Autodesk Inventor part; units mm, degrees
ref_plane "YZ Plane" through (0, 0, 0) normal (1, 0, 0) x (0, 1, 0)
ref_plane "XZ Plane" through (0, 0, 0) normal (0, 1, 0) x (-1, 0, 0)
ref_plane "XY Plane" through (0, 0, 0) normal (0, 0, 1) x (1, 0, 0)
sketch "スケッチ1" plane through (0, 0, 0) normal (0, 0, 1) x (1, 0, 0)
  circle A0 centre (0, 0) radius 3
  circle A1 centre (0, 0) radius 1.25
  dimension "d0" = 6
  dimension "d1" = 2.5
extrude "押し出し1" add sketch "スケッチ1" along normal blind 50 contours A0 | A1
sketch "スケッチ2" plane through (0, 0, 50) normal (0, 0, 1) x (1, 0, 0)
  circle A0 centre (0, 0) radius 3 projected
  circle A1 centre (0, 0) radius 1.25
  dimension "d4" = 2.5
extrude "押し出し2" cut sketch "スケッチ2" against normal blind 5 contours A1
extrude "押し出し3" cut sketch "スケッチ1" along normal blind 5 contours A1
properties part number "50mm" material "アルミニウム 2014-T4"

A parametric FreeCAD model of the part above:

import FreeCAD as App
import Part
import Sketcher

V = App.Vector

doc = App.newDocument("Part")
body = doc.addObject("PartDesign::Body", "Body")

# Sketch on XY plane
sketch1 = body.newObject("Sketcher::SketchObject", "Sketch")
sketch1.AttachmentSupport = (doc.getObject("XY_Plane"), [""])
sketch1.MapMode = "FlatFace"
sketch1.addGeometry(Part.Circle(V(0, 0, 0), V(0, 0, 1), 3), False)
sketch1.addConstraint([
    Sketcher.Constraint("Coincident", 0, 3, -1, 1),
    Sketcher.Constraint("Diameter", 0, 6.0),
])
pad1 = body.newObject("PartDesign::Pad", "Pad")
pad1.Profile = sketch1
pad1.Length = 50

# Sketch on XY plane
sketch2 = body.newObject("Sketcher::SketchObject", "Sketch001")
sketch2.AttachmentSupport = (doc.getObject("XY_Plane"), [""])
sketch2.MapMode = "FlatFace"
sketch2.AttachmentOffset = App.Placement(V(0, 0, 50), App.Rotation())
sketch2.addGeometry(Part.Circle(V(0, 0, 0), V(0, 0, 1), 1.2), False)
sketch2.addConstraint([
    Sketcher.Constraint("Coincident", 0, 3, -1, 1),
    Sketcher.Constraint("Diameter", 0, 2.5),
])
pocket1 = body.newObject("PartDesign::Pocket", "Pocket")
pocket1.Profile = sketch2
pocket1.Length = 5

# Sketch on XY plane
sketch3 = body.newObject("Sketcher::SketchObject", "Sketch002")
sketch3.AttachmentSupport = (doc.getObject("XY_Plane"), [""])
sketch3.MapMode = "FlatFace"
sketch3.addGeometry(Part.Circle(V(0, 0, 0), V(0, 0, 1), 1.2), False)
sketch3.addConstraint([
    Sketcher.Constraint("Coincident", 0, 3, -1, 1),
    Sketcher.Constraint("Diameter", 0, 2.5),
])
pocket2 = body.newObject("PartDesign::Pocket", "Pocket001")
pocket2.Profile = sketch3
pocket2.Length = 5
pocket2.Reversed = True

doc.recompute()
